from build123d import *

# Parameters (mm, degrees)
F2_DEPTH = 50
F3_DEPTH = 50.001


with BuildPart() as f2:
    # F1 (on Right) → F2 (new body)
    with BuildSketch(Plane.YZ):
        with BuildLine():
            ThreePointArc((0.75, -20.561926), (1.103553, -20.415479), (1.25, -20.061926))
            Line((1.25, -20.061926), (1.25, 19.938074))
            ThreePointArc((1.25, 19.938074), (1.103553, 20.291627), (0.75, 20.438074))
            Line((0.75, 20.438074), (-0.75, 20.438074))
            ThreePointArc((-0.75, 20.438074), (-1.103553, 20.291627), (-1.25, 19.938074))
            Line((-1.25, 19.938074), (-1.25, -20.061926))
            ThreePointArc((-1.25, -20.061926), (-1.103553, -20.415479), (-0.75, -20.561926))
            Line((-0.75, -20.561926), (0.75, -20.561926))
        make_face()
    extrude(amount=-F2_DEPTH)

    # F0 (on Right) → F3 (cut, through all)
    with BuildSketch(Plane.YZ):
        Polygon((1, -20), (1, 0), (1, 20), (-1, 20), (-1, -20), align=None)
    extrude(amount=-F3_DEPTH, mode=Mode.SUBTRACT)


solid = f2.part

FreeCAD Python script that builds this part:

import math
import FreeCAD as App
import Part
import Sketcher

doc = App.newDocument("Part")
body = doc.addObject("PartDesign::Body", "Body")

# Sketch on YZ plane
sketch1 = body.newObject("Sketcher::SketchObject", "Sketch")
sketch1.AttachmentSupport = (doc.getObject("YZ_Plane"), [""])
sketch1.MapMode = "FlatFace"
sketch1.addGeometry([
    Part.ArcOfCircle(Part.Circle(App.Vector(0.749999, -20.061925, 0), App.Vector(0, 0, 1), 0.500001), math.radians(-89.999847), math.radians(-0.000153)),  # 0
    Part.LineSegment(App.Vector(1.25, -20.061926, 0), App.Vector(1.25, 19.938074, 0)),  # 1
    Part.ArcOfCircle(Part.Circle(App.Vector(0.749999, 19.938073, 0), App.Vector(0, 0, 1), 0.500001), math.radians(0.000153), math.radians(89.999847)),  # 2
    Part.LineSegment(App.Vector(0.75, 20.438074, 0), App.Vector(-0.75, 20.438074, 0)),  # 3
    Part.ArcOfCircle(Part.Circle(App.Vector(-0.749999, 19.938073, 0), App.Vector(0, 0, 1), 0.500001), math.radians(90.000153), math.radians(179.999847)),  # 4
    Part.LineSegment(App.Vector(-1.25, 19.938074, 0), App.Vector(-1.25, -20.061926, 0)),  # 5
    Part.ArcOfCircle(Part.Circle(App.Vector(-0.749999, -20.061925, 0), App.Vector(0, 0, 1), 0.500001), math.radians(-179.999847), math.radians(-90.000153)),  # 6
    Part.LineSegment(App.Vector(-0.75, -20.561926, 0), App.Vector(0.75, -20.561926, 0)),  # 7
], False)
sketch1.addConstraint([
    Sketcher.Constraint("Coincident", 0, 2, 1, 1),
    Sketcher.Constraint("Coincident", 1, 2, 2, 1),
    Sketcher.Constraint("Coincident", 2, 2, 3, 1),
    Sketcher.Constraint("Coincident", 3, 2, 4, 1),
    Sketcher.Constraint("Coincident", 4, 2, 5, 1),
    Sketcher.Constraint("Coincident", 5, 2, 6, 1),
    Sketcher.Constraint("Coincident", 6, 2, 7, 1),
    Sketcher.Constraint("Coincident", 7, 2, 0, 1),
    Sketcher.Constraint("Vertical", 1),
    Sketcher.Constraint("Horizontal", 3),
    Sketcher.Constraint("Vertical", 5),
    Sketcher.Constraint("Horizontal", 7),
    Sketcher.Constraint("Equal", 0, 2),
    Sketcher.Constraint("Equal", 2, 4),
    Sketcher.Constraint("Equal", 4, 6),
    Sketcher.Constraint("Symmetric", 1, 2, 4, 2, -2),
    Sketcher.Constraint("Horizontal", 6, 3, 0, 2),
    Sketcher.Constraint("Horizontal", 4, 3, 1, 2),
    Sketcher.Constraint("Horizontal", 0, 2, 5, 2),
    Sketcher.Constraint("Vertical", 0, 3, 2, 2),
    Sketcher.Constraint("Vertical", 6, 3, 3, 2),
    Sketcher.Constraint("Vertical", 3, 2, 6, 2),
    Sketcher.Constraint("Vertical", 2, 2, 7, 2),
    Sketcher.Constraint("Radius", 0, 0.500001),
    Sketcher.Constraint("DistanceY", 1, 1, 1, 2, 40.0),
    Sketcher.Constraint("DistanceX", 3, 2, 3, 1, 1.5),
    Sketcher.Constraint("DistanceY", 0, 3, -1, 1, 20.061925),
])
pad1 = body.newObject("PartDesign::Pad", "Pad")
pad1.Profile = sketch1
pad1.Length = 50
pad1.Reversed = True

# Sketch on YZ plane
sketch2 = body.newObject("Sketcher::SketchObject", "Sketch001")
sketch2.AttachmentSupport = (doc.getObject("YZ_Plane"), [""])
sketch2.MapMode = "FlatFace"
sketch2.addGeometry([
    Part.LineSegment(App.Vector(1, -20, 0), App.Vector(1, 20, 0)),
    Part.LineSegment(App.Vector(1, 20, 0), App.Vector(-1, 20, 0)),
    Part.LineSegment(App.Vector(-1, 20, 0), App.Vector(-1, -20, 0)),
    Part.LineSegment(App.Vector(-1, -20, 0), App.Vector(1, -20, 0)),
], False)
sketch2.addConstraint([
    Sketcher.Constraint("Coincident", 0, 2, 1, 1),
    Sketcher.Constraint("Coincident", 1, 2, 2, 1),
    Sketcher.Constraint("Coincident", 2, 2, 3, 1),
    Sketcher.Constraint("Coincident", 3, 2, 0, 1),
    Sketcher.Constraint("Vertical", 0),
    Sketcher.Constraint("Horizontal", 1),
    Sketcher.Constraint("Vertical", 2),
    Sketcher.Constraint("Horizontal", 3),
    Sketcher.Constraint("Symmetric", 0, 2, 2, 2, -1, 1),
    Sketcher.Constraint("DistanceX", 1, 2, 1, 1, 2.0),
    Sketcher.Constraint("DistanceY", 0, 1, 0, 2, 40.0),
])
pocket1 = body.newObject("PartDesign::Pocket", "Pocket")
pocket1.Profile = sketch2
pocket1.Type = "ThroughAll"

doc.recompute()
